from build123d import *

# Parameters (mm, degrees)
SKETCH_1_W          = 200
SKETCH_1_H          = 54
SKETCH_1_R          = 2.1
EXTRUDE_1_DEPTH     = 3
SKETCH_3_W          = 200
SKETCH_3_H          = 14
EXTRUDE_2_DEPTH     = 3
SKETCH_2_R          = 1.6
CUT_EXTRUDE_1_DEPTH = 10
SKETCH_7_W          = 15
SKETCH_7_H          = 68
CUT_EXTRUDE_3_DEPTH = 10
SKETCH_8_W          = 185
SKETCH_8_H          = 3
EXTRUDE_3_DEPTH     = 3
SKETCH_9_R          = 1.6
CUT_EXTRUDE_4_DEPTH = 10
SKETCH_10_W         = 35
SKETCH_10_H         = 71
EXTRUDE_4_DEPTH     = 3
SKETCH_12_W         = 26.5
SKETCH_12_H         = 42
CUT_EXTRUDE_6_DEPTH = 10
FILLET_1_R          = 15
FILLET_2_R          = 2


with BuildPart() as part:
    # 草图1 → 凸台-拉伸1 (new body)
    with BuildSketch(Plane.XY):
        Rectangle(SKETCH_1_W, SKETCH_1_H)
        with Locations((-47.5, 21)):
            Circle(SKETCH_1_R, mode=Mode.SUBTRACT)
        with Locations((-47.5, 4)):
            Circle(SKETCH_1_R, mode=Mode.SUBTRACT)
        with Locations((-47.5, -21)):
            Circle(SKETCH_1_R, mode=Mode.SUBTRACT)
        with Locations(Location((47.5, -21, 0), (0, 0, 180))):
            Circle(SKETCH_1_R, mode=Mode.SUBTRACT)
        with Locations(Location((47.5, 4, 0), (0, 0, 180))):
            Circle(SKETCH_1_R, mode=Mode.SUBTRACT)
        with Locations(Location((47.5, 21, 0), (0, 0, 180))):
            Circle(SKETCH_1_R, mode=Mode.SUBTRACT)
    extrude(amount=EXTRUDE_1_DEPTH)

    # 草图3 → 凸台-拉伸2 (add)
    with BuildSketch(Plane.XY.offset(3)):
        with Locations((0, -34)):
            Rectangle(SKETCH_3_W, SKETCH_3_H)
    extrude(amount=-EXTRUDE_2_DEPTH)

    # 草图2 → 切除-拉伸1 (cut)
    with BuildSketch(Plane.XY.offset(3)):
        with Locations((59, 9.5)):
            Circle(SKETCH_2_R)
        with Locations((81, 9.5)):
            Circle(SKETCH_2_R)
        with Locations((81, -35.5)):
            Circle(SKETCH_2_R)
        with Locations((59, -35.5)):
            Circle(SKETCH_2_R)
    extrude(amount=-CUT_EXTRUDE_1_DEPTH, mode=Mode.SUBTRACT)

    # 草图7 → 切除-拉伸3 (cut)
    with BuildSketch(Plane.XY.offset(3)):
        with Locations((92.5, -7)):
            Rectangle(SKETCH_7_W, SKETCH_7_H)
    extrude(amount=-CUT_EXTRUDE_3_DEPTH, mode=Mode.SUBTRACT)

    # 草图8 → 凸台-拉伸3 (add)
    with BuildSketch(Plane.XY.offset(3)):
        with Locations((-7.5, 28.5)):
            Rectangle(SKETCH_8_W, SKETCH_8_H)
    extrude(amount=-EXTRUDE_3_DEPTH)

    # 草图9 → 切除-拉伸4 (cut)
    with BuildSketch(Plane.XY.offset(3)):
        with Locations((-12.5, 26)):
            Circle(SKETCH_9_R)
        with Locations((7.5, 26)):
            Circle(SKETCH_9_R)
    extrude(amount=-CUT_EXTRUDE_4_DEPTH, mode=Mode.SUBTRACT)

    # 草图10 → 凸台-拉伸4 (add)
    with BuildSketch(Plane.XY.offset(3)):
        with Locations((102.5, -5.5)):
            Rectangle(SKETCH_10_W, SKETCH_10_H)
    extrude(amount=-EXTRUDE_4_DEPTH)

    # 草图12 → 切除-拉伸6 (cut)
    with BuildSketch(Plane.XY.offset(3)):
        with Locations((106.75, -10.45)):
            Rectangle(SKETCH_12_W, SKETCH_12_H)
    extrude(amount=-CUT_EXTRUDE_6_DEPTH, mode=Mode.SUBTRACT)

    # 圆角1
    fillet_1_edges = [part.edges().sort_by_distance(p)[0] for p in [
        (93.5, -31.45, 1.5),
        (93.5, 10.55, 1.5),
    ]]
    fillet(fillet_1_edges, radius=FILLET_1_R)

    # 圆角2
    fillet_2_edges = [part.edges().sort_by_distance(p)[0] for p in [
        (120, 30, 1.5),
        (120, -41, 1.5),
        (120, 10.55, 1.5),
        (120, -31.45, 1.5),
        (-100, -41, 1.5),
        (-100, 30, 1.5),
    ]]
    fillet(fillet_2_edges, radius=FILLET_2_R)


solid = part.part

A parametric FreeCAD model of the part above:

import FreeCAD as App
import Part
import Sketcher

V = App.Vector
Q = App.Units.Quantity


def edges_at(feature, points):
    """Names of the edges that pass closest to the given points."""
    edges = feature.Shape.Edges
    near = lambda p: min(range(len(edges)), key=lambda i: edges[i].distToShape(Part.Vertex(*p))[0])
    return sorted({f"Edge{near(p) + 1}" for p in points})


def add_polygon(sketch, points):
    """Adds a closed chain of lines whose ends are joined by coincident constraints."""
    first, n = sketch.GeometryCount, len(points)
    for a, b in zip(points, points[1:] + points[:1]):
        sketch.addGeometry(Part.LineSegment(App.Vector(*a, 0), App.Vector(*b, 0)), False)
    for i in range(n):
        sketch.addConstraint(Sketcher.Constraint("Coincident", first + i, 2, first + (i + 1) % n, 1))

doc = App.newDocument("Part")
body = doc.addObject("PartDesign::Body", "Body")

sketch1 = body.newObject("Sketcher::SketchObject", "Sketch")
sketch1.AttachmentSupport = (doc.getObject("XY_Plane"), [""])
sketch1.MapMode = "FlatFace"
add_polygon(sketch1, [(-100, 27), (-100, -27), (100, -27), (100, 27)])
sketch1.addGeometry(Part.Circle(V(-47.5, -21, 0), V(0, 0, 1), 2.1), False)
sketch1.addGeometry(Part.Circle(V(47.5, -21, 0), V(0, 0, 1), 2.1), False)
sketch1.addGeometry(Part.Circle(V(-47.5, 4, 0), V(0, 0, 1), 2.1), False)
sketch1.addGeometry(Part.Circle(V(-47.5, 21, 0), V(0, 0, 1), 2.1), False)
sketch1.addGeometry(Part.Circle(V(47.5, 4, 0), V(0, 0, 1), 2.1), False)
sketch1.addGeometry(Part.Circle(V(47.5, 21, 0), V(0, 0, 1), 2.1), False)
sketch1.addConstraint(Sketcher.Constraint("Vertical", 0))
sketch1.addConstraint(Sketcher.Constraint("Horizontal", 1))
sketch1.addConstraint(Sketcher.Constraint("Vertical", 2))
sketch1.addConstraint(Sketcher.Constraint("Horizontal", 3))
sketch1.addConstraint(Sketcher.Constraint("Equal", 4, 5))
sketch1.addConstraint(Sketcher.Constraint("Equal", 5, 6))
sketch1.addConstraint(Sketcher.Constraint("Equal", 6, 7))
sketch1.addConstraint(Sketcher.Constraint("Equal", 7, 8))
sketch1.addConstraint(Sketcher.Constraint("Equal", 8, 9))
sketch1.addConstraint(Sketcher.Constraint("Symmetric", 5, 3, 7, 3, -1, 1))
sketch1.addConstraint(Sketcher.Constraint("Symmetric", 4, 3, 9, 3, -1, 1))
sketch1.addConstraint(Sketcher.Constraint("Symmetric", 0, 2, 2, 2, -1, 1))
sketch1.addConstraint(Sketcher.Constraint("Symmetric", 4, 3, 5, 3, -2))
sketch1.addConstraint(Sketcher.Constraint("Symmetric", 6, 3, 8, 3, -2))
sketch1.addConstraint(Sketcher.Constraint("Vertical", 4, 3, 6, 3))
sketch1.addConstraint(Sketcher.Constraint("Diameter", 4, Q("4.2 mm")))
sketch1.addConstraint(Sketcher.Constraint("DistanceX", 1, 1, 1, 2, Q("200 mm")))
sketch1.addConstraint(Sketcher.Constraint("DistanceY", 0, 2, 0, 1, Q("54 mm")))
sketch1.addConstraint(Sketcher.Constraint("DistanceY", 4, 3, -1, 1, Q("21 mm")))
sketch1.addConstraint(Sketcher.Constraint("DistanceY", -1, 1, 6, 3, Q("4 mm")))
sketch1.addConstraint(Sketcher.Constraint("DistanceX", 4, 3, 5, 3, Q("95 mm")))
pad1 = body.newObject("PartDesign::Pad", "Pad")
pad1.Profile = sketch1
pad1.Length = 3

sketch2 = body.newObject("Sketcher::SketchObject", "Sketch001")
sketch2.AttachmentSupport = (doc.getObject("XY_Plane"), [""])
sketch2.MapMode = "FlatFace"
sketch2.AttachmentOffset = App.Placement(V(0, 0, 3), App.Rotation())
add_polygon(sketch2, [(-100, -27), (-100, -41), (100, -41), (100, -27)])
sketch2.addConstraint(Sketcher.Constraint("Vertical", 0))
sketch2.addConstraint(Sketcher.Constraint("Horizontal", 1))
sketch2.addConstraint(Sketcher.Constraint("Vertical", 2))
sketch2.addConstraint(Sketcher.Constraint("Horizontal", 3))
sketch2.addConstraint(Sketcher.Constraint("DistanceX", 1, 1, 1, 2, Q("200 mm")))
sketch2.addConstraint(Sketcher.Constraint("DistanceY", 0, 2, 0, 1, Q("14 mm")))
sketch2.addConstraint(Sketcher.Constraint("DistanceX", 0, 2, -1, 1, Q("100 mm")))
sketch2.addConstraint(Sketcher.Constraint("DistanceY", 0, 2, -1, 1, Q("41 mm")))
pad2 = body.newObject("PartDesign::Pad", "Pad001")
pad2.Profile = sketch2
pad2.Length = 3
pad2.Reversed = True

sketch3 = body.newObject("Sketcher::SketchObject", "Sketch002")
sketch3.AttachmentSupport = (doc.getObject("XY_Plane"), [""])
sketch3.MapMode = "FlatFace"
sketch3.AttachmentOffset = App.Placement(V(0, 0, 3), App.Rotation())
sketch3.addGeometry(Part.Circle(V(59, 9.5, 0), V(0, 0, 1), 1.6), False)
sketch3.addGeometry(Part.Circle(V(81, 9.5, 0), V(0, 0, 1), 1.6), False)
sketch3.addGeometry(Part.Circle(V(81, -35.5, 0), V(0, 0, 1), 1.6), False)
sketch3.addGeometry(Part.Circle(V(59, -35.5, 0), V(0, 0, 1), 1.6), False)
sketch3.addConstraint(Sketcher.Constraint("Equal", 0, 1))
sketch3.addConstraint(Sketcher.Constraint("Equal", 1, 2))
sketch3.addConstraint(Sketcher.Constraint("Equal", 2, 3))
sketch3.addConstraint(Sketcher.Constraint("Horizontal", 0, 3, 1, 3))
sketch3.addConstraint(Sketcher.Constraint("Horizontal", 2, 3, 3, 3))
sketch3.addConstraint(Sketcher.Constraint("Vertical", 1, 3, 2, 3))
sketch3.addConstraint(Sketcher.Constraint("Vertical", 0, 3, 3, 3))
sketch3.addConstraint(Sketcher.Constraint("Diameter", 0, Q("3.2 mm")))
sketch3.addConstraint(Sketcher.Constraint("DistanceX", -1, 1, 0, 3, Q("59 mm")))
sketch3.addConstraint(Sketcher.Constraint("DistanceX", -1, 1, 1, 3, Q("81 mm")))
sketch3.addConstraint(Sketcher.Constraint("DistanceY", 2, 3, 1, 3, Q("45 mm")))
sketch3.addConstraint(Sketcher.Constraint("DistanceY", -1, 1, 0, 3, Q("9.5 mm")))
pocket1 = body.newObject("PartDesign::Pocket", "Pocket")
pocket1.Profile = sketch3
pocket1.Length = 10

sketch4 = body.newObject("Sketcher::SketchObject", "Sketch003")
sketch4.AttachmentSupport = (doc.getObject("XY_Plane"), [""])
sketch4.MapMode = "FlatFace"
sketch4.AttachmentOffset = App.Placement(V(0, 0, 3), App.Rotation())
add_polygon(sketch4, [(85, 27), (85, -41), (100, -41), (100, 27)])
sketch4.addConstraint(Sketcher.Constraint("Vertical", 0))
sketch4.addConstraint(Sketcher.Constraint("Horizontal", 1))
sketch4.addConstraint(Sketcher.Constraint("Vertical", 2))
sketch4.addConstraint(Sketcher.Constraint("Horizontal", 3))
sketch4.addConstraint(Sketcher.Constraint("DistanceX", 1, 1, 1, 2, Q("15 mm")))
sketch4.addConstraint(Sketcher.Constraint("DistanceY", 0, 2, 0, 1, Q("68 mm")))
sketch4.addConstraint(Sketcher.Constraint("DistanceX", -1, 1, 0, 2, Q("85 mm")))
sketch4.addConstraint(Sketcher.Constraint("DistanceY", 0, 2, -1, 1, Q("41 mm")))
pocket2 = body.newObject("PartDesign::Pocket", "Pocket001")
pocket2.Profile = sketch4
pocket2.Length = 10

sketch5 = body.newObject("Sketcher::SketchObject", "Sketch004")
sketch5.AttachmentSupport = (doc.getObject("XY_Plane"), [""])
sketch5.MapMode = "FlatFace"
sketch5.AttachmentOffset = App.Placement(V(0, 0, 3), App.Rotation())
add_polygon(sketch5, [(-100, 30), (-100, 27), (85, 27), (85, 30)])
sketch5.addConstraint(Sketcher.Constraint("Vertical", 0))
sketch5.addConstraint(Sketcher.Constraint("Horizontal", 1))
sketch5.addConstraint(Sketcher.Constraint("Vertical", 2))
sketch5.addConstraint(Sketcher.Constraint("Horizontal", 3))
sketch5.addConstraint(Sketcher.Constraint("DistanceX", 1, 1, 1, 2, Q("185 mm")))
sketch5.addConstraint(Sketcher.Constraint("DistanceY", 0, 2, 0, 1, Q("3 mm")))
sketch5.addConstraint(Sketcher.Constraint("DistanceX", 0, 2, -1, 1, Q("100 mm")))
sketch5.addConstraint(Sketcher.Constraint("DistanceY", -1, 1, 0, 2, Q("27 mm")))
pad3 = body.newObject("PartDesign::Pad", "Pad002")
pad3.Profile = sketch5
pad3.Length = 3
pad3.Reversed = True

sketch6 = body.newObject("Sketcher::SketchObject", "Sketch005")
sketch6.AttachmentSupport = (doc.getObject("XY_Plane"), [""])
sketch6.MapMode = "FlatFace"
sketch6.AttachmentOffset = App.Placement(V(0, 0, 3), App.Rotation())
sketch6.addGeometry(Part.Circle(V(-12.5, 26, 0), V(0, 0, 1), 1.6), False)
sketch6.addGeometry(Part.Circle(V(7.5, 26, 0), V(0, 0, 1), 1.6), False)
sketch6.addConstraint(Sketcher.Constraint("Equal", 0, 1))
sketch6.addConstraint(Sketcher.Constraint("Horizontal", 0, 3, 1, 3))
sketch6.addConstraint(Sketcher.Constraint("Diameter", 0, Q("3.2 mm")))
sketch6.addConstraint(Sketcher.Constraint("DistanceY", -1, 1, 0, 3, Q("26 mm")))
sketch6.addConstraint(Sketcher.Constraint("DistanceX", 0, 3, 1, 3, Q("20 mm")))
sketch6.addConstraint(Sketcher.Constraint("DistanceX", 0, 3, -1, 1, Q("12.5 mm")))
pocket3 = body.newObject("PartDesign::Pocket", "Pocket002")
pocket3.Profile = sketch6
pocket3.Length = 10

sketch7 = body.newObject("Sketcher::SketchObject", "Sketch006")
sketch7.AttachmentSupport = (doc.getObject("XY_Plane"), [""])
sketch7.MapMode = "FlatFace"
sketch7.AttachmentOffset = App.Placement(V(0, 0, 3), App.Rotation())
add_polygon(sketch7, [(85, 30), (85, -41), (120, -41), (120, 30)])
sketch7.addConstraint(Sketcher.Constraint("Vertical", 0))
sketch7.addConstraint(Sketcher.Constraint("Horizontal", 1))
sketch7.addConstraint(Sketcher.Constraint("Vertical", 2))
sketch7.addConstraint(Sketcher.Constraint("Horizontal", 3))
sketch7.addConstraint(Sketcher.Constraint("DistanceX", 1, 1, 1, 2, Q("35 mm")))
sketch7.addConstraint(Sketcher.Constraint("DistanceY", 0, 2, 0, 1, Q("71 mm")))
sketch7.addConstraint(Sketcher.Constraint("DistanceX", -1, 1, 0, 2, Q("85 mm")))
sketch7.addConstraint(Sketcher.Constraint("DistanceY", 0, 2, -1, 1, Q("41 mm")))
pad4 = body.newObject("PartDesign::Pad", "Pad003")
pad4.Profile = sketch7
pad4.Length = 3
pad4.Reversed = True

sketch8 = body.newObject("Sketcher::SketchObject", "Sketch007")
sketch8.AttachmentSupport = (doc.getObject("XY_Plane"), [""])
sketch8.MapMode = "FlatFace"
sketch8.AttachmentOffset = App.Placement(V(0, 0, 3), App.Rotation())
add_polygon(sketch8, [(94, 11), (94, -31), (120, -31), (120, 11)])
sketch8.addConstraint(Sketcher.Constraint("Vertical", 0))
sketch8.addConstraint(Sketcher.Constraint("Horizontal", 1))
sketch8.addConstraint(Sketcher.Constraint("Vertical", 2))
sketch8.addConstraint(Sketcher.Constraint("Horizontal", 3))
sketch8.addConstraint(Sketcher.Constraint("DistanceY", 0, 2, 0, 1, Q("42 mm")))
sketch8.addConstraint(Sketcher.Constraint("DistanceX", 1, 1, 1, 2, Q("26.5 mm")))
sketch8.addConstraint(Sketcher.Constraint("DistanceX", -1, 1, 1, 2, Q("120 mm")))
sketch8.addConstraint(Sketcher.Constraint("DistanceY", 0, 2, -1, 1, Q("31.45 mm")))
pocket4 = body.newObject("PartDesign::Pocket", "Pocket003")
pocket4.Profile = sketch8
pocket4.Length = 10
doc.recompute()

fillet = body.newObject("PartDesign::Fillet", "Fillet")
fillet.Base = (pocket4, edges_at(pocket4, [(93.5, -31.45, 1.5), (93.5, 10.55, 1.5)]))
fillet.Radius = 15
doc.recompute()

fillet2 = body.newObject("PartDesign::Fillet", "Fillet001")
fillet2.Base = (fillet, edges_at(fillet, [
    (120, 30, 1.5),
    (120, -41, 1.5),
    (120, 10.55, 1.5),
    (120, -31.45, 1.5),
    (-100, -41, 1.5),
    (-100, 30, 1.5),
]))
fillet2.Radius = 2

doc.recompute()
